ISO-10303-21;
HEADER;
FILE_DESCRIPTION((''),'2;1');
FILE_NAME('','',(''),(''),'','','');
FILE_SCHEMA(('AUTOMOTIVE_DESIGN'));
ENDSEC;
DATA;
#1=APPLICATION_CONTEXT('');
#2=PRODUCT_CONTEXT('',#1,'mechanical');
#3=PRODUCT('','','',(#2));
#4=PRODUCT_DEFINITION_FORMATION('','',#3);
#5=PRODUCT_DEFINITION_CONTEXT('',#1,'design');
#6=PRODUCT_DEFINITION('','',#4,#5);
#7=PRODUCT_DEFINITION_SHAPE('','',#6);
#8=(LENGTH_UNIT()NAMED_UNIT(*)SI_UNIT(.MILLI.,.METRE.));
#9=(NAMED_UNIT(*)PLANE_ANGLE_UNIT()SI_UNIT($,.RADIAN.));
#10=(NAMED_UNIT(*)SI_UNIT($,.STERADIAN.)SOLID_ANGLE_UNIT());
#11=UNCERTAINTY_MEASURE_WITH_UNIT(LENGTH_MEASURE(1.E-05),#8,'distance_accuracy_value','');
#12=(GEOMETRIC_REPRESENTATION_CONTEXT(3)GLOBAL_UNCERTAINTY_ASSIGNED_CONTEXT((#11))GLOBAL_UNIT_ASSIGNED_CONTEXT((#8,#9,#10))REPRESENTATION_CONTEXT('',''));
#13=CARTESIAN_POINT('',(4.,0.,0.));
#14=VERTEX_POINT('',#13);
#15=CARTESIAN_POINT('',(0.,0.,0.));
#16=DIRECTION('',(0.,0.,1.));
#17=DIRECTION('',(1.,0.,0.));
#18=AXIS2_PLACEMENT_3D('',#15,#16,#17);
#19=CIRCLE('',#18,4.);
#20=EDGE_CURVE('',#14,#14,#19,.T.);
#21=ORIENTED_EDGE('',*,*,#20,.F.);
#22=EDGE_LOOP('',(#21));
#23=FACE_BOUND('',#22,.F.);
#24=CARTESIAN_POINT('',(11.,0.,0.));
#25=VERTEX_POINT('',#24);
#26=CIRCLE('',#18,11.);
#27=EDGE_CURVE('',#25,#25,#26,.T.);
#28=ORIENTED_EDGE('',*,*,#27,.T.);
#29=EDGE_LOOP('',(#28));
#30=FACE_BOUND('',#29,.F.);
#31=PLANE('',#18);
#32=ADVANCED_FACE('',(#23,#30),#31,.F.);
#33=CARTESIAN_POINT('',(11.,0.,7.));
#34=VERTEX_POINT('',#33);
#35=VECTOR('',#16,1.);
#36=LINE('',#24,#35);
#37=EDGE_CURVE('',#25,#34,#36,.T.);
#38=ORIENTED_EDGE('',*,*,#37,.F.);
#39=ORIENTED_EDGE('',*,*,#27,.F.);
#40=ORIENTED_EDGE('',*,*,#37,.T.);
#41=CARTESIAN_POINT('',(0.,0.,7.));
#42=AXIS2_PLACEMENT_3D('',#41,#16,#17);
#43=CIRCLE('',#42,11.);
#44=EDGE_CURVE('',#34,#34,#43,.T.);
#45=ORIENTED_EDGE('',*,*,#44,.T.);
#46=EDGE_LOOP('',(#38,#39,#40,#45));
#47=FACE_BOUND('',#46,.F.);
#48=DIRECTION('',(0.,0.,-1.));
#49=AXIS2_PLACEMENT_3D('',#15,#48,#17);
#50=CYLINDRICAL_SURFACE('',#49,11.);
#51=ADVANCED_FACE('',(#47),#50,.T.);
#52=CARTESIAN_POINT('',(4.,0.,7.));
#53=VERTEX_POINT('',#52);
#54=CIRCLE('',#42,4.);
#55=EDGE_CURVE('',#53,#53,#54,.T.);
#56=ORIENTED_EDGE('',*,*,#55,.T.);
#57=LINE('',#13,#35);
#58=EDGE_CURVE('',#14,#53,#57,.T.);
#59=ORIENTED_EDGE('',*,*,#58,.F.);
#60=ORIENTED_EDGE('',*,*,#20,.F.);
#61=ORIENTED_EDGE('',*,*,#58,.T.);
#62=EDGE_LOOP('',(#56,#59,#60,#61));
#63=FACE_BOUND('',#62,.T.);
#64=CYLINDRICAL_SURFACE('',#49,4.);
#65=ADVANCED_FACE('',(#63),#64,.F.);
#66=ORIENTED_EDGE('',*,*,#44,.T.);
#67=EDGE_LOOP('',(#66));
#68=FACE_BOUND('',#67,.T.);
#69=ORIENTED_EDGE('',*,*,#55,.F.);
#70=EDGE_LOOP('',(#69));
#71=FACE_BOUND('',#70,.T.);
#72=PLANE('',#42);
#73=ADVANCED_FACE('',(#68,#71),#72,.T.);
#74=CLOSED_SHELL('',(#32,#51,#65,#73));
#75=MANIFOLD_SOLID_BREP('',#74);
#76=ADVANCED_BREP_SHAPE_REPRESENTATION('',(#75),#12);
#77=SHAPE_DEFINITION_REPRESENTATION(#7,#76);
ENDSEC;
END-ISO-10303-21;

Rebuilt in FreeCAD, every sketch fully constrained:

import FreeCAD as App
import Part
import Sketcher

V = App.Vector

doc = App.newDocument("Part")
body = doc.addObject("PartDesign::Body", "Body")

# Sketch on XY plane
sketch1 = doc.addObject("Sketcher::SketchObject", "Sketch")
body.addObject(sketch1)
sketch1.AttachmentSupport = (doc.XY_Plane, [""])
sketch1.MapMode = "FlatFace"
sketch1.addGeometry(Part.Circle(V(0, 0, 0), V(0, 0, 1), 11), False)
sketch1.addGeometry(Part.Circle(V(0, 0, 0), V(0, 0, 1), 4), False)
sketch1.addConstraint(Sketcher.Constraint("Coincident", 0, 3, -1, 1))
sketch1.addConstraint(Sketcher.Constraint("Coincident", 1, 3, -1, 1))
sketch1.addConstraint(Sketcher.Constraint("Diameter", 0, 22.0))
sketch1.addConstraint(Sketcher.Constraint("Diameter", 1, 8.0))
pad1 = doc.addObject("PartDesign::Pad", "Pad")
body.addObject(pad1)
pad1.Profile = sketch1
pad1.Length = 7

doc.recompute()
